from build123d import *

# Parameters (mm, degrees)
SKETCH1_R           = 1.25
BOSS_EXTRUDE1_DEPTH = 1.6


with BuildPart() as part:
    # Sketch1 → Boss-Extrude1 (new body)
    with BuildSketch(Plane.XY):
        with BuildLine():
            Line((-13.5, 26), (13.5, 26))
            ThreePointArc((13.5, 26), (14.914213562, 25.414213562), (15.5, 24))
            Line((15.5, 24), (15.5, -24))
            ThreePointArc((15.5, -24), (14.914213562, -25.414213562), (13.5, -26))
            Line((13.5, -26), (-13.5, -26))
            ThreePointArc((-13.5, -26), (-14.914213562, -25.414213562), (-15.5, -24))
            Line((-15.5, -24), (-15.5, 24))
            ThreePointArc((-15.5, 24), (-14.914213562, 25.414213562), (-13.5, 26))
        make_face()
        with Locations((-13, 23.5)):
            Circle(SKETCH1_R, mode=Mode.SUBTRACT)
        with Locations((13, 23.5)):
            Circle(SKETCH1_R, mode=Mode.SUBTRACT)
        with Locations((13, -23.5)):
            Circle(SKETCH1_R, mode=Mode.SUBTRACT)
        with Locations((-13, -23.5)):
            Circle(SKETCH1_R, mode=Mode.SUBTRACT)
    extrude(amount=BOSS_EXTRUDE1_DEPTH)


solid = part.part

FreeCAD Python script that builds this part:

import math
import FreeCAD as App
import Part
import Sketcher

doc = App.newDocument("Part")
body = doc.addObject("PartDesign::Body", "Body")

# Sketch on XY plane
sketch1 = doc.addObject("Sketcher::SketchObject", "Sketch")
body.addObject(sketch1)
sketch1.AttachmentSupport = (doc.XY_Plane, [""])
sketch1.MapMode = "FlatFace"
sketch1.addGeometry([
    Part.LineSegment(App.Vector(13.5, 26, 0), App.Vector(-13.5, 26, 0)),  # 0
    Part.ArcOfCircle(Part.Circle(App.Vector(-13.5, 24, 0), App.Vector(0, 0, 1), 2), math.radians(90), math.radians(180)),  # 1
    Part.LineSegment(App.Vector(-15.5, 24, 0), App.Vector(-15.5, -24, 0)),  # 2
    Part.ArcOfCircle(Part.Circle(App.Vector(-13.5, -24, 0), App.Vector(0, 0, 1), 2), math.radians(-180), math.radians(-90)),  # 3
    Part.LineSegment(App.Vector(-13.5, -26, 0), App.Vector(13.5, -26, 0)),  # 4
    Part.ArcOfCircle(Part.Circle(App.Vector(13.5, -24, 0), App.Vector(0, 0, 1), 2), math.radians(-90), math.radians(0)),  # 5
    Part.LineSegment(App.Vector(15.5, -24, 0), App.Vector(15.5, 24, 0)),  # 6
    Part.ArcOfCircle(Part.Circle(App.Vector(13.5, 24, 0), App.Vector(0, 0, 1), 2), math.radians(0), math.radians(90)),  # 7
    Part.Circle(App.Vector(13, -23.5, 0), App.Vector(0, 0, 1), 1.25),  # 8
    Part.Circle(App.Vector(-13, -23.5, 0), App.Vector(0, 0, 1), 1.25),  # 9
    Part.Circle(App.Vector(13, 23.5, 0), App.Vector(0, 0, 1), 1.25),  # 10
    Part.Circle(App.Vector(-13, 23.5, 0), App.Vector(0, 0, 1), 1.25),  # 11
], False)
sketch1.addConstraint([
    Sketcher.Constraint("Tangent", 0, 2, 1, 1),
    Sketcher.Constraint("Tangent", 1, 2, 2, 1),
    Sketcher.Constraint("Tangent", 2, 2, 3, 1),
    Sketcher.Constraint("Tangent", 3, 2, 4, 1),
    Sketcher.Constraint("Tangent", 4, 2, 5, 1),
    Sketcher.Constraint("Tangent", 5, 2, 6, 1),
    Sketcher.Constraint("Tangent", 6, 2, 7, 1),
    Sketcher.Constraint("Tangent", 7, 2, 0, 1),
    Sketcher.Constraint("Horizontal", 0),
    Sketcher.Constraint("Vertical", 2),
    Sketcher.Constraint("Horizontal", 4),
    Sketcher.Constraint("Vertical", 6),
    Sketcher.Constraint("Equal", 1, 3),
    Sketcher.Constraint("Equal", 3, 5),
    Sketcher.Constraint("Equal", 5, 7),
    Sketcher.Constraint("Equal", 8, 9),
    Sketcher.Constraint("Equal", 9, 10),
    Sketcher.Constraint("Equal", 10, 11),
    Sketcher.Constraint("Symmetric", 1, 3, 5, 3, -1, 1),
    Sketcher.Constraint("Symmetric", 9, 3, 10, 3, -1, 1),
    Sketcher.Constraint("Symmetric", 8, 3, 11, 3, -1, 1),
    Sketcher.Constraint("Symmetric", 8, 3, 9, 3, -2),
    Sketcher.Constraint("Radius", 1, 2.0),
    Sketcher.Constraint("Diameter", 8, 2.5),
    Sketcher.Constraint("DistanceX", 0, 2, 0, 1, 27.0),
    Sketcher.Constraint("DistanceY", 2, 2, 2, 1, 48.0),
    Sketcher.Constraint("DistanceX", -1, 1, 8, 3, 13.0),
    Sketcher.Constraint("DistanceY", 8, 3, 10, 3, 47.0),
])
pad1 = doc.addObject("PartDesign::Pad", "Pad")
body.addObject(pad1)
pad1.Profile = sketch1
pad1.Length = 1.6

doc.recompute()
